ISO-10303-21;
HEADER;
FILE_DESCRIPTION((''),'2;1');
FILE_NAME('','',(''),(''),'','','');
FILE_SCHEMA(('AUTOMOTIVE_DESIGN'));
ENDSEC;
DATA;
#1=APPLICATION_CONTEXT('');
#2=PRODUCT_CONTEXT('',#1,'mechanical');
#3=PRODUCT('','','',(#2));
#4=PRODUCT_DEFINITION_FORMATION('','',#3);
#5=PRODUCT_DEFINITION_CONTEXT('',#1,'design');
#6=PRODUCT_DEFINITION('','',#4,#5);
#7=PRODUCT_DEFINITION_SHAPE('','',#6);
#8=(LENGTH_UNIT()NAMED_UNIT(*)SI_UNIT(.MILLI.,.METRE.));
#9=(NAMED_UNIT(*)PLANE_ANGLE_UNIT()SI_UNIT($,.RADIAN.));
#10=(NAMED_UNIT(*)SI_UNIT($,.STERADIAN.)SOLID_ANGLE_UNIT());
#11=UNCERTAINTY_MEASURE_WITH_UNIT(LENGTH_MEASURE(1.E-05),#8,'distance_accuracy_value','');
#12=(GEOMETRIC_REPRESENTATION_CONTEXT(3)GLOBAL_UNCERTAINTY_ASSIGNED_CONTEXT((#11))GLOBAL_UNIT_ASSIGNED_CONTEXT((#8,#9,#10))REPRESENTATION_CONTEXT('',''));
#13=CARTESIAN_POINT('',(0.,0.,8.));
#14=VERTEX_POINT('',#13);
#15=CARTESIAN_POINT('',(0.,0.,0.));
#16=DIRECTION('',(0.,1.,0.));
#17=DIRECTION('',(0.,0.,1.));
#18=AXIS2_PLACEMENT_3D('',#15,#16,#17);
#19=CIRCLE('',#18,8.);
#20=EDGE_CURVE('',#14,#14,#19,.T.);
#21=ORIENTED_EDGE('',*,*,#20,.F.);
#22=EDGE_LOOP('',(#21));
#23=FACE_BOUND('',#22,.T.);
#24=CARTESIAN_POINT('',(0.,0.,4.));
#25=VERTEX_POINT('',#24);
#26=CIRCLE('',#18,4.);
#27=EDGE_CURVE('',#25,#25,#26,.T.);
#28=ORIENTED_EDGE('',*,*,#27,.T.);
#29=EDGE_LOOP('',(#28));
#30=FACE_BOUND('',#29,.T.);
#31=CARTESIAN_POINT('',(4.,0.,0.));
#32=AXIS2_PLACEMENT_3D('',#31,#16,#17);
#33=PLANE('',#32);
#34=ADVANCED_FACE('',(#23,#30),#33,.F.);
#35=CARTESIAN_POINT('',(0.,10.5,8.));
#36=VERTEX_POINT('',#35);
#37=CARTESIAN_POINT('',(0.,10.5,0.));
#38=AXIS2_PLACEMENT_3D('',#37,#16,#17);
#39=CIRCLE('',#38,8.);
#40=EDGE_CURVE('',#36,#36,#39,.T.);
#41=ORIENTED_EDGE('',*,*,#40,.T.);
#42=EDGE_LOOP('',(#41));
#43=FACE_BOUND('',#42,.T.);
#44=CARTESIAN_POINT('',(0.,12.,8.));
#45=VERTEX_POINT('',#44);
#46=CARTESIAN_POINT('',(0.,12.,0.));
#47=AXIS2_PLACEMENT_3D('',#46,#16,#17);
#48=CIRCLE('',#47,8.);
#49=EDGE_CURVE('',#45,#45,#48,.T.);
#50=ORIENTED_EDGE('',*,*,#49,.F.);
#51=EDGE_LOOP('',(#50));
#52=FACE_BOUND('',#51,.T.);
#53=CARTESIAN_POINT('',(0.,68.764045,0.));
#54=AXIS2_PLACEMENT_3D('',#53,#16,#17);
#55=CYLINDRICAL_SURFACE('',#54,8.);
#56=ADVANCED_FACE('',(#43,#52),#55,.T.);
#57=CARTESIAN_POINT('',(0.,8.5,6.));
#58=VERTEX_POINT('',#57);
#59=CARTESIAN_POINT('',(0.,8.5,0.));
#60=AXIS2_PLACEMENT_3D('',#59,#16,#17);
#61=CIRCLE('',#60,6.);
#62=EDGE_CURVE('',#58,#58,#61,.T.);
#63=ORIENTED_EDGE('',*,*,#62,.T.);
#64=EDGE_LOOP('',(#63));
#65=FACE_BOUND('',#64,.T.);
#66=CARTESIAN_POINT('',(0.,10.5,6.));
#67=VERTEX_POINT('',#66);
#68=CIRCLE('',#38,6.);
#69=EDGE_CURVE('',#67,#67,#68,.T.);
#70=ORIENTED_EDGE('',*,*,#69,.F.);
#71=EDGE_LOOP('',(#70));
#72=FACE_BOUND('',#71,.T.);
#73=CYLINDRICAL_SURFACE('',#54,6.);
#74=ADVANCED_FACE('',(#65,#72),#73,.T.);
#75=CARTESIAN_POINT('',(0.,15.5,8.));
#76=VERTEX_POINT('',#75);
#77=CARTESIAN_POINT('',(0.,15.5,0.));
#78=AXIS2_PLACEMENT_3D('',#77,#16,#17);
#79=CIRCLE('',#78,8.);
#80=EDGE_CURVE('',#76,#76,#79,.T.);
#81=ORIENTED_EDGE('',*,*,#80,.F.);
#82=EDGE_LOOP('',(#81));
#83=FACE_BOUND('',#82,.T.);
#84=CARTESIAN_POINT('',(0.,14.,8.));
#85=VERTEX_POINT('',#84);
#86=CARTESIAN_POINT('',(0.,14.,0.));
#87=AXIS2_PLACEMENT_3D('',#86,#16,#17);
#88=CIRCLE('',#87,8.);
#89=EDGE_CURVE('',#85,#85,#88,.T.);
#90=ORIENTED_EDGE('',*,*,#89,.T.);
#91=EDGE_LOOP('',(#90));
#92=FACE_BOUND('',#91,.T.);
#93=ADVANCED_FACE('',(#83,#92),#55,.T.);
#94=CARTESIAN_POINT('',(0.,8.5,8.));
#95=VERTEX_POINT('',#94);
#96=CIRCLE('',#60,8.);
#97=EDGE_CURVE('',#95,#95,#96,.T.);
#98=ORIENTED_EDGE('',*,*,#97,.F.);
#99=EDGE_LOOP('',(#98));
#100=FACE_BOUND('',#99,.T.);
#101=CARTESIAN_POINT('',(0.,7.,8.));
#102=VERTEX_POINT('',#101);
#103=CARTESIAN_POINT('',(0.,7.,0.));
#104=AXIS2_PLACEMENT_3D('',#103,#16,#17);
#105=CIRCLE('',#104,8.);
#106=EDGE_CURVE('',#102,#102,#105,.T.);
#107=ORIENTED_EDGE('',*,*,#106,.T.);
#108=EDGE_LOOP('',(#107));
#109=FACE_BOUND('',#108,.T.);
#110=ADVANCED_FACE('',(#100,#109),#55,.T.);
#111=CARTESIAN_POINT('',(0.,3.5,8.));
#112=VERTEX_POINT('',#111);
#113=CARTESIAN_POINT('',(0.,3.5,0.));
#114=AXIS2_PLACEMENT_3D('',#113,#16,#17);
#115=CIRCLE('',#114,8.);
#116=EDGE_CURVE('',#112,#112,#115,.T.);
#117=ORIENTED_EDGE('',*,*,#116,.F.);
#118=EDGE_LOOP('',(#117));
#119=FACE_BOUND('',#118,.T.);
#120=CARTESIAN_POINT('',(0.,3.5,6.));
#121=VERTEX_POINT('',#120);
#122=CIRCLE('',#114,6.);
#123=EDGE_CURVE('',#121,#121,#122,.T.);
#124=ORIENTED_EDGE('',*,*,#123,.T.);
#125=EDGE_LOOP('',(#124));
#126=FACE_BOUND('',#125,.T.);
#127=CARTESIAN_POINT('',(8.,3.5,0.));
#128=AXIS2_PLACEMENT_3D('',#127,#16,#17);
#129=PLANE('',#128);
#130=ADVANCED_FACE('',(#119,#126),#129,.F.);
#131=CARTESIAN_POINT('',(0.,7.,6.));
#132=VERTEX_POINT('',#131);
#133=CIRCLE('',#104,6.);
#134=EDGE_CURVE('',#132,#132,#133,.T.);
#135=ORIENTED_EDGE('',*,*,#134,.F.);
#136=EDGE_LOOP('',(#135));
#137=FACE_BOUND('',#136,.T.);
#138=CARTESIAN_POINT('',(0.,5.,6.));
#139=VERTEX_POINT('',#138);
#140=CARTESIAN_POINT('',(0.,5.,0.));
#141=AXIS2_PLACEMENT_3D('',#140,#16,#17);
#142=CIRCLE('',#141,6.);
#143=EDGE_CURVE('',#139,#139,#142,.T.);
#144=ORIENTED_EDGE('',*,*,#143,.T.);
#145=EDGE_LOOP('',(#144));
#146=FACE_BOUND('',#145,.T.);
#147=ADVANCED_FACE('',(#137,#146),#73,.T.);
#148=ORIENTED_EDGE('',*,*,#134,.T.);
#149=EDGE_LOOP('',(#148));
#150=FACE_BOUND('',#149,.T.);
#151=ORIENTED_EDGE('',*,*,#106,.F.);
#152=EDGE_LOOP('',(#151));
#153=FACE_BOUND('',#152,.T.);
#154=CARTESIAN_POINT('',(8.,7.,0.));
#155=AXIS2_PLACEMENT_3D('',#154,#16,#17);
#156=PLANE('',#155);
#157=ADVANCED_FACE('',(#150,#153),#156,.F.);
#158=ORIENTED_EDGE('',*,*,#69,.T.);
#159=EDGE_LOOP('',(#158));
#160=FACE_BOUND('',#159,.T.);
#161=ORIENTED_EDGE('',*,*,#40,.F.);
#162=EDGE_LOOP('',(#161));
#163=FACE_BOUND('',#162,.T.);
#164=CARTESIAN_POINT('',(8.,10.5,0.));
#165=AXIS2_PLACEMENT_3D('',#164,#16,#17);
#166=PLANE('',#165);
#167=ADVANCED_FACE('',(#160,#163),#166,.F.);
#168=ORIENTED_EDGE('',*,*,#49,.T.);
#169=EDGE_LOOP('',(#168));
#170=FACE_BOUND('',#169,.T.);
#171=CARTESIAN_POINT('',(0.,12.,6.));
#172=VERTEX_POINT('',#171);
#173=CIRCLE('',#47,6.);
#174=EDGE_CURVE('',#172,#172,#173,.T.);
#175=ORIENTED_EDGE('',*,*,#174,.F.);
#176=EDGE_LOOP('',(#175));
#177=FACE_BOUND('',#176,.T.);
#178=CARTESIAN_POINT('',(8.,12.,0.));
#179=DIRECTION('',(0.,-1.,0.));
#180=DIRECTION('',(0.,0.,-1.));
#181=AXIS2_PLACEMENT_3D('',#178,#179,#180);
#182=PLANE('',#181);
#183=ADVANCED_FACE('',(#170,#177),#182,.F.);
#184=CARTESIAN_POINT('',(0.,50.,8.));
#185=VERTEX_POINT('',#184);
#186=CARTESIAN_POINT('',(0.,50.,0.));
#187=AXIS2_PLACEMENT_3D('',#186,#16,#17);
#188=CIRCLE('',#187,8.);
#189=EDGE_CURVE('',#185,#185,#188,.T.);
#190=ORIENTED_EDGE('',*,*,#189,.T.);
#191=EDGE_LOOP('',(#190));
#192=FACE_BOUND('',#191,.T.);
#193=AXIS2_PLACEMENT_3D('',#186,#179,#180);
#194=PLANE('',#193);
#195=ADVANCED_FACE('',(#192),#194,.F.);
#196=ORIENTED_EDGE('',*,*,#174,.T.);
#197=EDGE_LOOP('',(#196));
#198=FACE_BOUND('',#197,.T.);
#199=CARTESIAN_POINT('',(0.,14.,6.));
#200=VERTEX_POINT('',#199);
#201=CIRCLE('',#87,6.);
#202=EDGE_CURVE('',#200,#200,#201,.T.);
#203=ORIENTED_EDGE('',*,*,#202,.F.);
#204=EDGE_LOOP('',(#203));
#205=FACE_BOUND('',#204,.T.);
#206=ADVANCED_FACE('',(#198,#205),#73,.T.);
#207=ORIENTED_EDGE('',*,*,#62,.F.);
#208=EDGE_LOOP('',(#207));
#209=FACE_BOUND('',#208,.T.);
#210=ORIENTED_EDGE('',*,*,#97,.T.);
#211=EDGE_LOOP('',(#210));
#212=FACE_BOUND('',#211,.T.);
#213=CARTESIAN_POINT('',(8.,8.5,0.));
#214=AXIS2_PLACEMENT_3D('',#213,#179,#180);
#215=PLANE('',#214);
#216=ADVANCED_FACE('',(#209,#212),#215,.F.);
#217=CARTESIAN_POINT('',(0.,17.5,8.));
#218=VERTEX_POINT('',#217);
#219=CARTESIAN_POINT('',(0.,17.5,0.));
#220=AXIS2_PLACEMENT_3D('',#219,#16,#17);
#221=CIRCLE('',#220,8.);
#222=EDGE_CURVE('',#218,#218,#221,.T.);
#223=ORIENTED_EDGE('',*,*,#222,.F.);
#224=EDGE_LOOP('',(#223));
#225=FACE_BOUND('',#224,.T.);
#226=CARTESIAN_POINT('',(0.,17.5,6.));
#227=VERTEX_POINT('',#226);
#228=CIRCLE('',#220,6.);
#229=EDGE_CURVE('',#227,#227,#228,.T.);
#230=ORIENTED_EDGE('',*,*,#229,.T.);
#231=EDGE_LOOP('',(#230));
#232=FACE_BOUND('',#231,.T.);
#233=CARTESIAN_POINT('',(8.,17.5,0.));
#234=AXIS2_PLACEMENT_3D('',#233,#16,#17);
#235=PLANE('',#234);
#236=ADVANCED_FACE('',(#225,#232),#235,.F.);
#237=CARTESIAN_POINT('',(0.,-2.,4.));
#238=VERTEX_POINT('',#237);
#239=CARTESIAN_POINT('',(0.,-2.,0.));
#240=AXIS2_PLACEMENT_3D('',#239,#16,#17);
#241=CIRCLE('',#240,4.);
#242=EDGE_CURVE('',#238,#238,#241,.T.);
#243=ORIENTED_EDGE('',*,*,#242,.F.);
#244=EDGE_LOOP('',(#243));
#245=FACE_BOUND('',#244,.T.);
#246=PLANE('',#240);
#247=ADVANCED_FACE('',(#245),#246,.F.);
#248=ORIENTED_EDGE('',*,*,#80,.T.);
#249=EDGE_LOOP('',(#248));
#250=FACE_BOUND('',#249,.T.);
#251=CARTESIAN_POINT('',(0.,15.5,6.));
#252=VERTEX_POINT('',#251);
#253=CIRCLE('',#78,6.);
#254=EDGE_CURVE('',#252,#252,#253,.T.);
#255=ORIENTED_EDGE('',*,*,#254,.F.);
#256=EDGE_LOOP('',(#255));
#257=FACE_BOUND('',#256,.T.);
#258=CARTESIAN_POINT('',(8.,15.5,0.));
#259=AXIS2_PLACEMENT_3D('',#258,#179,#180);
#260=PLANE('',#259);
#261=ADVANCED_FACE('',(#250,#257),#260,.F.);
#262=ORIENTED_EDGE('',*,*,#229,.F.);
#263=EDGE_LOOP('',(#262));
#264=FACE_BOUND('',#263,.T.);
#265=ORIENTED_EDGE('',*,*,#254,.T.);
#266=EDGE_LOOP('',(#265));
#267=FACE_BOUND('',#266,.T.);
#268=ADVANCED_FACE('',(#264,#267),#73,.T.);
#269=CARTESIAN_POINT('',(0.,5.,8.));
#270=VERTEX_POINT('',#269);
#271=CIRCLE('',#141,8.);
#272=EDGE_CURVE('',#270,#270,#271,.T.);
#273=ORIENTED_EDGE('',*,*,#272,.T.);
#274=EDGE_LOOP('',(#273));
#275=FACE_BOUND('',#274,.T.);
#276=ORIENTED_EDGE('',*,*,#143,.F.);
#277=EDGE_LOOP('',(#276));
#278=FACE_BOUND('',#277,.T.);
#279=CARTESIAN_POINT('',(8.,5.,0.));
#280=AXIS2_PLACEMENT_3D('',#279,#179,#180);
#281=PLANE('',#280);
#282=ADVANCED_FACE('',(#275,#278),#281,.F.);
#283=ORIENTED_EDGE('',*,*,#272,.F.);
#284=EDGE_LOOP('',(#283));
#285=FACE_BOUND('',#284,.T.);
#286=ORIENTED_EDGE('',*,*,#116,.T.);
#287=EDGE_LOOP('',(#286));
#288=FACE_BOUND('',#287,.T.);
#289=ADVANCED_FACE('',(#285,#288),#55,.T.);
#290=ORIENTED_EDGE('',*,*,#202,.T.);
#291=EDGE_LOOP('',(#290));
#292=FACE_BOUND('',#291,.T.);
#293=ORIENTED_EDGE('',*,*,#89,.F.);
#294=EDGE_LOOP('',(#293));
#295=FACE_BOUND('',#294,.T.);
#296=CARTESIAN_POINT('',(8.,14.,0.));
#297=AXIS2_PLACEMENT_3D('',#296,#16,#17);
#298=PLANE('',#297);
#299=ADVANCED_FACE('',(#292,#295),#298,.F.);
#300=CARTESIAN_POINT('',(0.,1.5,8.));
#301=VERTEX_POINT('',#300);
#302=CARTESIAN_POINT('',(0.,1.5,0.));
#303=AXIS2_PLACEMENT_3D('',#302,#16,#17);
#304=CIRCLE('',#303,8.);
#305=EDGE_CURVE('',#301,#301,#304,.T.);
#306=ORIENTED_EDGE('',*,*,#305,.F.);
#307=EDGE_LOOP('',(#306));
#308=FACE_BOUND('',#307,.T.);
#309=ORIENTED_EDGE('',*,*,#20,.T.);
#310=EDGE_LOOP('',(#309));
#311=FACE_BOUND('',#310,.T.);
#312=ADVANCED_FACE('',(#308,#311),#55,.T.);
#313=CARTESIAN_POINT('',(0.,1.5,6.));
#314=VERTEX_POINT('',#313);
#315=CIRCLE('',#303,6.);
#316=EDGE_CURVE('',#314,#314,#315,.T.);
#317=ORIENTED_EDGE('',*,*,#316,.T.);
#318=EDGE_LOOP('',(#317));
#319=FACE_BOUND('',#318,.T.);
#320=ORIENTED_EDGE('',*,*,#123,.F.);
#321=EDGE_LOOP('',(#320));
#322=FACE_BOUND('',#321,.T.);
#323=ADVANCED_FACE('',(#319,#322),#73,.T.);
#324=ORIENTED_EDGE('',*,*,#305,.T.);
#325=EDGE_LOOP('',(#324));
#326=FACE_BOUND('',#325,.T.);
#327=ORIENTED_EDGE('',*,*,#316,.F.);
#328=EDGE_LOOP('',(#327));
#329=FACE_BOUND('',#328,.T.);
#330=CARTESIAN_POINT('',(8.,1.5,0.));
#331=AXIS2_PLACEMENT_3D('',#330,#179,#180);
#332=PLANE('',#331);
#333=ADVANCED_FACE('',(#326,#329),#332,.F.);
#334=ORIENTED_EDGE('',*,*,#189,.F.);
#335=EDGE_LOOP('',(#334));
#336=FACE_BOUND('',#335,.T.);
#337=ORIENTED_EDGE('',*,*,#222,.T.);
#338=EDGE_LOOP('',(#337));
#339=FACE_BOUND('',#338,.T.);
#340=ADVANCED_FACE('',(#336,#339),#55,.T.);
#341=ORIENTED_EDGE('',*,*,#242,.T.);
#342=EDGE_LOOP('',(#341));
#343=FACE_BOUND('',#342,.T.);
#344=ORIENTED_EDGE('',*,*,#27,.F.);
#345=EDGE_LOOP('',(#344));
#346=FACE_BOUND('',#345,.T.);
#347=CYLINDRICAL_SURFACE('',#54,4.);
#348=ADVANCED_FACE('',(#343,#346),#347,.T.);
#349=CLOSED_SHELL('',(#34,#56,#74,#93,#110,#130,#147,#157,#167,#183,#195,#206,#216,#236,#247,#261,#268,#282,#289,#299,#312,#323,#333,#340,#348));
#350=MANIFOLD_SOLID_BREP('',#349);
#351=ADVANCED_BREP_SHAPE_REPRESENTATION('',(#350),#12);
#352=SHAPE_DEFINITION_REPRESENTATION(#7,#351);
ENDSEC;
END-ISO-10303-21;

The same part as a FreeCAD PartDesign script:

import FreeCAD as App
import Part
import Sketcher

V = App.Vector
Q = App.Units.Quantity


def add_polygon(sketch, points):
    """Adds a closed chain of lines whose ends are joined by coincident constraints."""
    first, n = sketch.GeometryCount, len(points)
    for a, b in zip(points, points[1:] + points[:1]):
        sketch.addGeometry(Part.LineSegment(App.Vector(*a, 0), App.Vector(*b, 0)), False)
    for i in range(n):
        sketch.addConstraint(Sketcher.Constraint("Coincident", first + i, 2, first + (i + 1) % n, 1))

doc = App.newDocument("Part")
body = doc.addObject("PartDesign::Body", "Body")

sketch1 = body.newObject("Sketcher::SketchObject", "Sketch")
sketch1.AttachmentSupport = (doc.getObject("XY_Plane"), [""])
sketch1.MapMode = "FlatFace"
add_polygon(sketch1, [(8, 50), (0, 50), (0, -2), (4, -2), (4, 0), (8, 0), (8, 1.5), (6, 1.5), (6, 3.5), (8, 3.5), (8, 5), (6, 5), (6, 7), (8, 7), (8, 8.5), (6, 8.5), (6, 10.5), (8, 10.5), (8, 12), (6, 12), (6, 14), (8, 14), (8, 15.5), (6, 15.5), (6, 17.5), (8, 17.5)])
sketch1.addConstraint([
    Sketcher.Constraint("Horizontal", 0),
    Sketcher.Constraint("Vertical", 1),
    Sketcher.Constraint("Horizontal", 2),
    Sketcher.Constraint("Vertical", 3),
    Sketcher.Constraint("Horizontal", 4),
    Sketcher.Constraint("Vertical", 5),
    Sketcher.Constraint("Horizontal", 6),
    Sketcher.Constraint("Vertical", 7),
    Sketcher.Constraint("Horizontal", 8),
    Sketcher.Constraint("Vertical", 9),
    Sketcher.Constraint("Horizontal", 10),
    Sketcher.Constraint("Vertical", 11),
    Sketcher.Constraint("Horizontal", 12),
    Sketcher.Constraint("Vertical", 13),
    Sketcher.Constraint("Horizontal", 14),
    Sketcher.Constraint("Vertical", 15),
    Sketcher.Constraint("Horizontal", 16),
    Sketcher.Constraint("Vertical", 17),
    Sketcher.Constraint("Horizontal", 18),
    Sketcher.Constraint("Vertical", 19),
    Sketcher.Constraint("Horizontal", 20),
    Sketcher.Constraint("Vertical", 21),
    Sketcher.Constraint("Horizontal", 22),
    Sketcher.Constraint("Vertical", 23),
    Sketcher.Constraint("Horizontal", 24),
    Sketcher.Constraint("Vertical", 25),
    Sketcher.Constraint("PointOnObject", 0, 2, -2),
    Sketcher.Constraint("PointOnObject", 3, 2, -1),
    Sketcher.Constraint("Vertical", 5, 2, 8, 2),
    Sketcher.Constraint("Vertical", 7, 2, 10, 2),
    Sketcher.Constraint("Vertical", 9, 2, 12, 2),
    Sketcher.Constraint("Vertical", 11, 2, 14, 2),
    Sketcher.Constraint("Vertical", 13, 2, 16, 2),
    Sketcher.Constraint("Vertical", 15, 2, 18, 2),
    Sketcher.Constraint("Vertical", 17, 2, 20, 2),
    Sketcher.Constraint("Vertical", 19, 2, 22, 2),
    Sketcher.Constraint("Vertical", 21, 2, 24, 2),
    Sketcher.Constraint("Equal", 2, 4),
    Sketcher.Constraint("Equal", 24, 3),
    Sketcher.Constraint("Equal", 3, 7),
    Sketcher.Constraint("Equal", 5, 9),
    Sketcher.Constraint("Equal", 7, 11),
    Sketcher.Constraint("Equal", 9, 13),
    Sketcher.Constraint("Equal", 11, 15),
    Sketcher.Constraint("Equal", 13, 17),
    Sketcher.Constraint("Equal", 15, 19),
    Sketcher.Constraint("Equal", 17, 21),
    Sketcher.Constraint("Equal", 19, 23),
    Sketcher.Constraint("DistanceX", 0, 2, 0, 1, Q("8 mm")),
    Sketcher.Constraint("DistanceX", 6, 2, 6, 1, Q("2 mm")),
    Sketcher.Constraint("DistanceY", 1, 2, 1, 1, Q("52 mm")),
    Sketcher.Constraint("DistanceY", 5, 1, 5, 2, Q("1.5 mm")),
])
revolution = body.newObject("PartDesign::Revolution", "Revolution")
revolution.Profile = sketch1
revolution.ReferenceAxis = (sketch1, ["V_Axis"])
revolution.Angle = 360

doc.recompute()
